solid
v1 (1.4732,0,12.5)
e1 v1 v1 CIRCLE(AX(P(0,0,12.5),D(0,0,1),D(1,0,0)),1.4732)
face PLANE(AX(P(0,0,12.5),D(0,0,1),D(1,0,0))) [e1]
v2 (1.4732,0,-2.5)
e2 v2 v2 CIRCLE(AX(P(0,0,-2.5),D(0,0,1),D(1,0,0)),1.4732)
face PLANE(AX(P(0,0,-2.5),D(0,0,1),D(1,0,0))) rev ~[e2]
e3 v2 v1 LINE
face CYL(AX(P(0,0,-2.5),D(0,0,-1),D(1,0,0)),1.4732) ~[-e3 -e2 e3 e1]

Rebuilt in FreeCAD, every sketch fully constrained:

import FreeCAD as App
import Part
import Sketcher
Q = App.Units.Quantity

doc = App.newDocument("Part")
body = doc.addObject("PartDesign::Body", "Body")

# Sketch on XY plane
sketch1 = doc.addObject("Sketcher::SketchObject", "Sketch")
body.addObject(sketch1)
sketch1.AttachmentSupport = (doc.XY_Plane, [""])
sketch1.MapMode = "FlatFace"
sketch1.AttachmentOffset = App.Placement(App.Vector(0, 0, -2.5), App.Rotation())
sketch1.addGeometry(Part.Circle(App.Vector(0, 0, 0), App.Vector(0, 0, 1), 1.4732), False)
sketch1.addConstraint(Sketcher.Constraint("Coincident", 0, 3, -1, 1))
sketch1.addConstraint(Sketcher.Constraint("Diameter", 0, Q("2.9464 mm")))
pad1 = doc.addObject("PartDesign::Pad", "Pad")
body.addObject(pad1)
pad1.Profile = sketch1
pad1.Length = 15

doc.recompute()
